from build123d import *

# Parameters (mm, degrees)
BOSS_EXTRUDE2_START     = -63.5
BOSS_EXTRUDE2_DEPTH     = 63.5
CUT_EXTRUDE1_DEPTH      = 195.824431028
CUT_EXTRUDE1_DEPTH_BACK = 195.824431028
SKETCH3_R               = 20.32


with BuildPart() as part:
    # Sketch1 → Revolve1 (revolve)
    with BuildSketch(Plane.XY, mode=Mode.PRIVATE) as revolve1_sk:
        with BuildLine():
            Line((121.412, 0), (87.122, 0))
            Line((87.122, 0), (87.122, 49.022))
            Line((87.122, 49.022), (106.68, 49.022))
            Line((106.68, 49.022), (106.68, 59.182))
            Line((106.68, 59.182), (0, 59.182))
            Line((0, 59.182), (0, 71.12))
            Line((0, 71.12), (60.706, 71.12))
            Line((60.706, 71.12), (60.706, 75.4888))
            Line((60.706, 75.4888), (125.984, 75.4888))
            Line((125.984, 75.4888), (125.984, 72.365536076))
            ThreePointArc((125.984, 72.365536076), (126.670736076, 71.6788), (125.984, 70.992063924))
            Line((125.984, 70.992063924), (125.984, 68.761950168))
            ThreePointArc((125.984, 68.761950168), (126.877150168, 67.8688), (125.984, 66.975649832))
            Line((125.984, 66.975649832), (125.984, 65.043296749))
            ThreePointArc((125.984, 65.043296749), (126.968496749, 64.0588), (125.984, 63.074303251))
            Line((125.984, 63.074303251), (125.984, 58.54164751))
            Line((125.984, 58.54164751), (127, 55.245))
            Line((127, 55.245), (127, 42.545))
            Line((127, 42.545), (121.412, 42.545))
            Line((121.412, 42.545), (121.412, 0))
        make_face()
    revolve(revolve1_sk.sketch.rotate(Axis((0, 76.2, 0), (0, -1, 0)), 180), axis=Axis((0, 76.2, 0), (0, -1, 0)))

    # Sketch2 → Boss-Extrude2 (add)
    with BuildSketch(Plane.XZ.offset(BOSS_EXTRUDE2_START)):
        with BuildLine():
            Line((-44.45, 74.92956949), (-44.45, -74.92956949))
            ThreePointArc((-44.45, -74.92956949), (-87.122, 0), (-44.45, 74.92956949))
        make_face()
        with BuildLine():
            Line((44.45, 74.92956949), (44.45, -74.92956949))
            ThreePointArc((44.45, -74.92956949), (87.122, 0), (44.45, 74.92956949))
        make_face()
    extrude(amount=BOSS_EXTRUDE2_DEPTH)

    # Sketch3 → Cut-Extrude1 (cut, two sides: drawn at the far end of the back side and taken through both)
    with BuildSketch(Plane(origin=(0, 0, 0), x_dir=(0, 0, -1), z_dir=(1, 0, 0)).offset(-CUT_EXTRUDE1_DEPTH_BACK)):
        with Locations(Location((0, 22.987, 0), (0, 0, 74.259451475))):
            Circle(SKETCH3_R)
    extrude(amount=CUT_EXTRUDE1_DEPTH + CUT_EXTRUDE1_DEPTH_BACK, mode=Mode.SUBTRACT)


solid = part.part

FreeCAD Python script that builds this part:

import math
import FreeCAD as App
import Part
import Sketcher
from FreeCAD import Vector
Q = App.Units.Quantity

doc = App.newDocument("Part")
body = doc.addObject("PartDesign::Body", "Body")

# Sketch on XY plane
sketch1 = body.newObject("Sketcher::SketchObject", "Sketch")
sketch1.AttachmentSupport = (doc.getObject("XY_Plane"), [""])
sketch1.MapMode = "FlatFace"
sketch1.addGeometry(Part.LineSegment(Vector(87.1, 0, 0), Vector(121.4, 0, 0)), False)
sketch1.addGeometry(Part.LineSegment(Vector(121.4, 0, 0), Vector(121.4, 42.5, 0)), False)
sketch1.addGeometry(Part.LineSegment(Vector(121.4, 42.5, 0), Vector(127, 42.5, 0)), False)
sketch1.addGeometry(Part.LineSegment(Vector(127, 42.5, 0), Vector(127, 55.2, 0)), False)
sketch1.addGeometry(Part.LineSegment(Vector(127, 55.2, 0), Vector(126, 58.5, 0)), False)
sketch1.addGeometry(Part.LineSegment(Vector(126, 58.5, 0), Vector(126, 63.1, 0)), False)
sketch1.addGeometry(Part.ArcOfCircle(Part.Circle(Vector(126, 64.1, 0), Vector(0, 0, 1), 1), math.radians(-90), math.radians(90)), False)
sketch1.addGeometry(Part.LineSegment(Vector(126, 65, 0), Vector(126, 67, 0)), False)
sketch1.addGeometry(Part.ArcOfCircle(Part.Circle(Vector(126, 67.9, 0), Vector(0, 0, 1), 0.9), math.radians(-90), math.radians(90)), False)
sketch1.addGeometry(Part.LineSegment(Vector(126, 68.8, 0), Vector(126, 71, 0)), False)
sketch1.addGeometry(Part.ArcOfCircle(Part.Circle(Vector(126, 71.7, 0), Vector(0, 0, 1), 0.7), math.radians(-90), math.radians(90)), False)
sketch1.addGeometry(Part.LineSegment(Vector(126, 72.4, 0), Vector(126, 75.5, 0)), False)
sketch1.addGeometry(Part.LineSegment(Vector(126, 75.5, 0), Vector(60.7, 75.5, 0)), False)
sketch1.addGeometry(Part.LineSegment(Vector(60.7, 75.5, 0), Vector(60.7, 71.1, 0)), False)
sketch1.addGeometry(Part.LineSegment(Vector(60.7, 71.1, 0), Vector(0, 71.1, 0)), False)
sketch1.addGeometry(Part.LineSegment(Vector(0, 71.1, 0), Vector(0, 59.2, 0)), False)
sketch1.addGeometry(Part.LineSegment(Vector(0, 59.2, 0), Vector(106.7, 59.2, 0)), False)
sketch1.addGeometry(Part.LineSegment(Vector(106.7, 59.2, 0), Vector(106.7, 49, 0)), False)
sketch1.addGeometry(Part.LineSegment(Vector(106.7, 49, 0), Vector(87.1, 49, 0)), False)
sketch1.addGeometry(Part.LineSegment(Vector(87.1, 49, 0), Vector(87.1, 0, 0)), False)
sketch1.addConstraint(Sketcher.Constraint("Coincident", 0, 2, 1, 1))
sketch1.addConstraint(Sketcher.Constraint("Coincident", 1, 2, 2, 1))
sketch1.addConstraint(Sketcher.Constraint("Coincident", 2, 2, 3, 1))
sketch1.addConstraint(Sketcher.Constraint("Coincident", 3, 2, 4, 1))
sketch1.addConstraint(Sketcher.Constraint("Coincident", 4, 2, 5, 1))
sketch1.addConstraint(Sketcher.Constraint("Coincident", 5, 2, 6, 1))
sketch1.addConstraint(Sketcher.Constraint("Coincident", 6, 2, 7, 1))
sketch1.addConstraint(Sketcher.Constraint("Coincident", 7, 2, 8, 1))
sketch1.addConstraint(Sketcher.Constraint("Coincident", 8, 2, 9, 1))
sketch1.addConstraint(Sketcher.Constraint("Coincident", 9, 2, 10, 1))
sketch1.addConstraint(Sketcher.Constraint("Coincident", 10, 2, 11, 1))
sketch1.addConstraint(Sketcher.Constraint("Coincident", 11, 2, 12, 1))
sketch1.addConstraint(Sketcher.Constraint("Coincident", 12, 2, 13, 1))
sketch1.addConstraint(Sketcher.Constraint("Coincident", 13, 2, 14, 1))
sketch1.addConstraint(Sketcher.Constraint("Coincident", 14, 2, 15, 1))
sketch1.addConstraint(Sketcher.Constraint("Coincident", 15, 2, 16, 1))
sketch1.addConstraint(Sketcher.Constraint("Coincident", 16, 2, 17, 1))
sketch1.addConstraint(Sketcher.Constraint("Coincident", 17, 2, 18, 1))
sketch1.addConstraint(Sketcher.Constraint("Coincident", 18, 2, 19, 1))
sketch1.addConstraint(Sketcher.Constraint("Coincident", 19, 2, 0, 1))
sketch1.addConstraint(Sketcher.Constraint("Horizontal", 0))
sketch1.addConstraint(Sketcher.Constraint("Vertical", 1))
sketch1.addConstraint(Sketcher.Constraint("Horizontal", 2))
sketch1.addConstraint(Sketcher.Constraint("Vertical", 3))
sketch1.addConstraint(Sketcher.Constraint("Vertical", 5))
sketch1.addConstraint(Sketcher.Constraint("Vertical", 7))
sketch1.addConstraint(Sketcher.Constraint("Vertical", 9))
sketch1.addConstraint(Sketcher.Constraint("Vertical", 11))
sketch1.addConstraint(Sketcher.Constraint("Horizontal", 12))
sketch1.addConstraint(Sketcher.Constraint("Vertical", 13))
sketch1.addConstraint(Sketcher.Constraint("Horizontal", 14))
sketch1.addConstraint(Sketcher.Constraint("Vertical", 15))
sketch1.addConstraint(Sketcher.Constraint("Horizontal", 16))
sketch1.addConstraint(Sketcher.Constraint("Vertical", 17))
sketch1.addConstraint(Sketcher.Constraint("Horizontal", 18))
sketch1.addConstraint(Sketcher.Constraint("Vertical", 19))
sketch1.addConstraint(Sketcher.Constraint("PointOnObject", 0, 2, -1))
sketch1.addConstraint(Sketcher.Constraint("PointOnObject", 14, 2, -2))
sketch1.addConstraint(Sketcher.Constraint("Vertical", 6, 3, 8, 3))
sketch1.addConstraint(Sketcher.Constraint("Vertical", 8, 3, 10, 3))
sketch1.addConstraint(Sketcher.Constraint("Vertical", 10, 3, 4, 2))
sketch1.addConstraint(Sketcher.Constraint("Vertical", 5, 2, 6, 2))
sketch1.addConstraint(Sketcher.Constraint("Vertical", 7, 2, 8, 2))
sketch1.addConstraint(Sketcher.Constraint("Vertical", 9, 2, 10, 2))
sketch1.addConstraint(Sketcher.Constraint("DistanceX", 16, 1, 16, 2, Q("4.2 in")))
sketch1.addConstraint(Sketcher.Constraint("DistanceY", 3, 1, 3, 2, Q("0.5 in")))
sketch1.addConstraint(Sketcher.Constraint("DistanceY", 17, 2, 17, 1, Q("0.4 in")))
sketch1.addConstraint(Sketcher.Constraint("DistanceX", -1, 1, 2, 2, Q("5 in")))
sketch1.addConstraint(Sketcher.Constraint("DistanceX", 0, 1, 0, 2, Q("1.35 in")))
sketch1.addConstraint(Sketcher.Constraint("DistanceX", 2, 1, 2, 2, Q("0.22 in")))
sketch1.addConstraint(Sketcher.Constraint("DistanceX", 12, 2, 12, 1, Q("2.57 in")))
sketch1.addConstraint(Sketcher.Constraint("DistanceX", 14, 2, 14, 1, Q("2.39 in")))
sketch1.addConstraint(Sketcher.Constraint("DistanceY", 15, 2, 15, 1, Q("0.47 in")))
sketch1.addConstraint(Sketcher.Constraint("DistanceY", 19, 2, 19, 1, Q("1.93 in")))
sketch1.addConstraint(Sketcher.Constraint("DistanceY", 6, 3, 10, 3, Q("0.3 in")))
sketch1.addConstraint(Sketcher.Constraint("DistanceY", 8, 3, 11, 2, Q("0.3 in")))
sketch1.addConstraint(Sketcher.Constraint("DistanceY", 1, 1, 1, 2, Q("1.675 in")))
sketch1.addConstraint(Sketcher.Constraint("DistanceY", 13, 2, 13, 1, Q("0.172 in")))
sketch1.addConstraint(Sketcher.Constraint("DistanceY", 6, 3, 8, 3, Q("0.15 in")))
sketch1.addConstraint(Sketcher.Constraint("Radius", 8, 0.89315))
sketch1.addConstraint(Sketcher.Constraint("Radius", 6, 0.984497))
sketch1.addConstraint(Sketcher.Constraint("Radius", 10, 0.686736))
sketch1.addConstraint(Sketcher.Constraint("Distance", 4, 3.449658))
revolution = body.newObject("PartDesign::Revolution", "Revolution")
revolution.Profile = sketch1
revolution.ReferenceAxis = (sketch1, ["V_Axis"])
revolution.Angle = 360

# Sketch on XZ plane
sketch2 = body.newObject("Sketcher::SketchObject", "Sketch001")
sketch2.AttachmentSupport = (doc.getObject("XZ_Plane"), [""])
sketch2.MapMode = "FlatFace"
sketch2.AttachmentOffset = App.Placement(Vector(0, 0, -2.5 * 25.4), App.Rotation())
sketch2.addGeometry(Part.LineSegment(Vector(-44, -75, 0), Vector(-44, 75, 0)), False)
sketch2.addGeometry(Part.ArcOfCircle(Part.Circle(Vector(0, 0, 0), Vector(0, 0, 1), 87), math.radians(121), math.radians(239)), False)
sketch2.addGeometry(Part.LineSegment(Vector(44, 75, 0), Vector(44, -75, 0)), False)
sketch2.addGeometry(Part.ArcOfCircle(Part.Circle(Vector(0, 0, 0), Vector(0, 0, 1), 87), math.radians(-59), math.radians(59)), False)
sketch2.addConstraint(Sketcher.Constraint("Coincident", 0, 1, 1, 2))
sketch2.addConstraint(Sketcher.Constraint("Coincident", 1, 1, 0, 2))
sketch2.addConstraint(Sketcher.Constraint("Coincident", 2, 1, 3, 2))
sketch2.addConstraint(Sketcher.Constraint("Coincident", 3, 1, 2, 2))
sketch2.addConstraint(Sketcher.Constraint("Vertical", 0))
sketch2.addConstraint(Sketcher.Constraint("Vertical", 2))
sketch2.addConstraint(Sketcher.Constraint("Coincident", 1, 3, -1, 1))
sketch2.addConstraint(Sketcher.Constraint("Coincident", 3, 3, -1, 1))
sketch2.addConstraint(Sketcher.Constraint("Equal", 1, 3))
sketch2.addConstraint(Sketcher.Constraint("Horizontal", 1, 1, 2, 1))
sketch2.addConstraint(Sketcher.Constraint("Radius", 1, Q("3.43 in")))
sketch2.addConstraint(Sketcher.Constraint("DistanceX", 1, 1, 2, 1, Q("3.5 in")))
pad1 = body.newObject("PartDesign::Pad", "Pad")
pad1.Profile = sketch2
pad1.Length = Q("2.5 in")

# Sketch on YZ plane
sketch3 = body.newObject("Sketcher::SketchObject", "Sketch002")
sketch3.AttachmentSupport = (doc.getObject("YZ_Plane"), [""])
sketch3.MapMode = "FlatFace"
sketch3.addGeometry(Part.Circle(Vector(23, 0, 0), Vector(0, 0, 1), 20), False)
sketch3.addConstraint(Sketcher.Constraint("PointOnObject", 0, 3, -1))
sketch3.addConstraint(Sketcher.Constraint("Diameter", 0, Q("1.6 in")))
sketch3.addConstraint(Sketcher.Constraint("DistanceX", -1, 1, 0, 3, Q("0.905 in")))
pocket1 = body.newObject("PartDesign::Pocket", "Pocket")
pocket1.Profile = sketch3
pocket1.Type = "ThroughAll"
pocket1.Midplane = True

doc.recompute()
